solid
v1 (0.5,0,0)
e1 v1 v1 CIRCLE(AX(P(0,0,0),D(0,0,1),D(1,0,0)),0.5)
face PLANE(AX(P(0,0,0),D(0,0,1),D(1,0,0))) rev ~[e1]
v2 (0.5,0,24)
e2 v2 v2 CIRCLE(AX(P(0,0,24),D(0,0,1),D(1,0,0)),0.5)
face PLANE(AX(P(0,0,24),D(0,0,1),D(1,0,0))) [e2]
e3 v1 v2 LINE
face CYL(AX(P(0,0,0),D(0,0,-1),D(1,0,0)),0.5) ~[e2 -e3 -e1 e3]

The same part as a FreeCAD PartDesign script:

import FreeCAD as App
import Part
import Sketcher

doc = App.newDocument("Part")
body = doc.addObject("PartDesign::Body", "Body")

# Sketch on XY plane
sketch1 = body.newObject("Sketcher::SketchObject", "Sketch")
sketch1.AttachmentSupport = (doc.getObject("XY_Plane"), [""])
sketch1.MapMode = "FlatFace"
sketch1.addGeometry(Part.Circle(App.Vector(0, 0, 0), App.Vector(0, 0, 1), 0.5), False)
sketch1.addConstraint([
    Sketcher.Constraint("Coincident", 0, 3, -1, 1),
    Sketcher.Constraint("Diameter", 0, 1.0),
])
pad1 = body.newObject("PartDesign::Pad", "Pad")
pad1.Profile = sketch1
pad1.Length = 24

doc.recompute()
